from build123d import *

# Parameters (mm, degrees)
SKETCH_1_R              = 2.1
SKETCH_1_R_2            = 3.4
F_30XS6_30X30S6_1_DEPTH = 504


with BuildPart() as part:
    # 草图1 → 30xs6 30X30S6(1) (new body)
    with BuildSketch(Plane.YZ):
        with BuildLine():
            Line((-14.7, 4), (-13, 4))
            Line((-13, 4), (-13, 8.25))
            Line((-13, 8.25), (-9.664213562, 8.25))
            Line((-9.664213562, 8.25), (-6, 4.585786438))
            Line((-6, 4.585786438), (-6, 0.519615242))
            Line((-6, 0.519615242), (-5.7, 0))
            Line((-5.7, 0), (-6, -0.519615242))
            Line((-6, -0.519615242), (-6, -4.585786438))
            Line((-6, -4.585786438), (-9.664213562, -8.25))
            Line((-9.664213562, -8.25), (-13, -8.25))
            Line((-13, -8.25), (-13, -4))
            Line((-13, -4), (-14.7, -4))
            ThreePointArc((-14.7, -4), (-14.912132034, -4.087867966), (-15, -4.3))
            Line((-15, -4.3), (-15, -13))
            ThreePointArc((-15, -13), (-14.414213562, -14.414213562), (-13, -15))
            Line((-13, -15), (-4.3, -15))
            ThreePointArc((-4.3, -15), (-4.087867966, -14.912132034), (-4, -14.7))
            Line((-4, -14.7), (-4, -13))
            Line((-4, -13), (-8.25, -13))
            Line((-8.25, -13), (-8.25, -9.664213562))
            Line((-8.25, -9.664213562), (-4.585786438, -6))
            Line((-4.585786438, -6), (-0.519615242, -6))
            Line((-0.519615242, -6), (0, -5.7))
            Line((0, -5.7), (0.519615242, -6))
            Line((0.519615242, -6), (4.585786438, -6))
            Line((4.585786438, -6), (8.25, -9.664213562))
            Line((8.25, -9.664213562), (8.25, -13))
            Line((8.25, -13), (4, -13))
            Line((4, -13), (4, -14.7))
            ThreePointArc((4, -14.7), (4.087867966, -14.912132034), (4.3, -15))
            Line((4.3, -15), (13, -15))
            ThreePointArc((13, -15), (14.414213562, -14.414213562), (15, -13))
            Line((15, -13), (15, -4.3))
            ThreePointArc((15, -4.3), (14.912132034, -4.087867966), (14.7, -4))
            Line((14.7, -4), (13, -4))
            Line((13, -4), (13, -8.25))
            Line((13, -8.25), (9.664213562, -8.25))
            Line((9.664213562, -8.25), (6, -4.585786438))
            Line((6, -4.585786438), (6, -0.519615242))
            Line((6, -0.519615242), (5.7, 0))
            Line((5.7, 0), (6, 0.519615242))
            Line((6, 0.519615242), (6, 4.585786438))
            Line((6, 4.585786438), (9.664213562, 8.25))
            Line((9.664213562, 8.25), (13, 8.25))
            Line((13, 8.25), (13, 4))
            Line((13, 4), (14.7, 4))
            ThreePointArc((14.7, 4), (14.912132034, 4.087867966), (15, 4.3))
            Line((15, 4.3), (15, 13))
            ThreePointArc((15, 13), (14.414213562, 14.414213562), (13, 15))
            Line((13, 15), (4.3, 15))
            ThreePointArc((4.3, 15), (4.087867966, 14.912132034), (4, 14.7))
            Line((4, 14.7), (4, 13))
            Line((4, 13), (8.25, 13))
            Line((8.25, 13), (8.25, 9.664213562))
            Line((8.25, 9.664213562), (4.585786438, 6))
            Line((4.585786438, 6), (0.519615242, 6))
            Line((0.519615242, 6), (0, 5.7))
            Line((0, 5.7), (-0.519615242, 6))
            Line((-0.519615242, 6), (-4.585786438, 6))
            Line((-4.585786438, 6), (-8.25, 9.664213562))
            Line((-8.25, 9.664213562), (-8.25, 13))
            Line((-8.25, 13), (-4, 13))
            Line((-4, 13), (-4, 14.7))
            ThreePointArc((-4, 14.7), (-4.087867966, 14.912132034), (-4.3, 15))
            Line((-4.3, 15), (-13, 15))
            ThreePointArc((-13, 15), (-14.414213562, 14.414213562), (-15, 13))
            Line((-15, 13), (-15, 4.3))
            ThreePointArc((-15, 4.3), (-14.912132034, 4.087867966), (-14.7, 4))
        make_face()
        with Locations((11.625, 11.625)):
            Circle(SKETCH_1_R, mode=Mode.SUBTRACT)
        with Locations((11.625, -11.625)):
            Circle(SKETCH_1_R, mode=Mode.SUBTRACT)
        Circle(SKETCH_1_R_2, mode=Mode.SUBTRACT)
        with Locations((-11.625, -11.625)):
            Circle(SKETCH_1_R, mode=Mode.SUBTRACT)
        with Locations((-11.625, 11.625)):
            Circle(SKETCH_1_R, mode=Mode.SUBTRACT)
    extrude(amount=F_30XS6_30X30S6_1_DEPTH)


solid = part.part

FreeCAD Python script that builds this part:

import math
import FreeCAD as App
import Part
import Sketcher
from FreeCAD import Vector
Q = App.Units.Quantity

doc = App.newDocument("Part")
body = doc.addObject("PartDesign::Body", "Body")

# Sketch on YZ plane
sketch1 = body.newObject("Sketcher::SketchObject", "Sketch")
sketch1.AttachmentSupport = (doc.getObject("YZ_Plane"), [""])
sketch1.MapMode = "FlatFace"
sketch1.addGeometry(Part.LineSegment(Vector(-14.7, 4, 0), Vector(-13, 4, 0)), False)
sketch1.addGeometry(Part.LineSegment(Vector(-13, 4, 0), Vector(-13, 8.25, 0)), False)
sketch1.addGeometry(Part.LineSegment(Vector(-13, 8.25, 0), Vector(-9.664214, 8.25, 0)), False)
sketch1.addGeometry(Part.LineSegment(Vector(-9.664214, 8.25, 0), Vector(-6, 4.585786, 0)), False)
sketch1.addGeometry(Part.LineSegment(Vector(-6, 4.585786, 0), Vector(-6, 0.519615, 0)), False)
sketch1.addGeometry(Part.LineSegment(Vector(-6, 0.519615, 0), Vector(-5.7, 0, 0)), False)
sketch1.addGeometry(Part.LineSegment(Vector(-5.7, 0, 0), Vector(-6, -0.519615, 0)), False)
sketch1.addGeometry(Part.LineSegment(Vector(-6, -0.519615, 0), Vector(-6, -4.585786, 0)), False)
sketch1.addGeometry(Part.LineSegment(Vector(-6, -4.585786, 0), Vector(-9.664214, -8.25, 0)), False)
sketch1.addGeometry(Part.LineSegment(Vector(-9.664214, -8.25, 0), Vector(-13, -8.25, 0)), False)
sketch1.addGeometry(Part.LineSegment(Vector(-13, -8.25, 0), Vector(-13, -4, 0)), False)
sketch1.addGeometry(Part.LineSegment(Vector(-13, -4, 0), Vector(-14.7, -4, 0)), False)
sketch1.addGeometry(Part.ArcOfCircle(Part.Circle(Vector(-14.7, -4.3, 0), Vector(0, 0, 1), 0.3), math.radians(90), math.radians(180)), False)
sketch1.addGeometry(Part.LineSegment(Vector(-15, -4.3, 0), Vector(-15, -13, 0)), False)
sketch1.addGeometry(Part.ArcOfCircle(Part.Circle(Vector(-13, -13, 0), Vector(0, 0, 1), 2), math.radians(-180), math.radians(-90)), False)
sketch1.addGeometry(Part.LineSegment(Vector(-13, -15, 0), Vector(-4.3, -15, 0)), False)
sketch1.addGeometry(Part.ArcOfCircle(Part.Circle(Vector(-4.3, -14.7, 0), Vector(0, 0, 1), 0.3), math.radians(-90), math.radians(0)), False)
sketch1.addGeometry(Part.LineSegment(Vector(-4, -14.7, 0), Vector(-4, -13, 0)), False)
sketch1.addGeometry(Part.LineSegment(Vector(-4, -13, 0), Vector(-8.25, -13, 0)), False)
sketch1.addGeometry(Part.LineSegment(Vector(-8.25, -13, 0), Vector(-8.25, -9.664214, 0)), False)
sketch1.addGeometry(Part.LineSegment(Vector(-8.25, -9.664214, 0), Vector(-4.585786, -6, 0)), False)
sketch1.addGeometry(Part.LineSegment(Vector(-4.585786, -6, 0), Vector(-0.519615, -6, 0)), False)
sketch1.addGeometry(Part.LineSegment(Vector(-0.519615, -6, 0), Vector(0, -5.7, 0)), False)
sketch1.addGeometry(Part.LineSegment(Vector(0, -5.7, 0), Vector(0.519615, -6, 0)), False)
sketch1.addGeometry(Part.LineSegment(Vector(0.519615, -6, 0), Vector(4.585786, -6, 0)), False)
sketch1.addGeometry(Part.LineSegment(Vector(4.585786, -6, 0), Vector(8.25, -9.664214, 0)), False)
sketch1.addGeometry(Part.LineSegment(Vector(8.25, -9.664214, 0), Vector(8.25, -13, 0)), False)
sketch1.addGeometry(Part.LineSegment(Vector(8.25, -13, 0), Vector(4, -13, 0)), False)
sketch1.addGeometry(Part.LineSegment(Vector(4, -13, 0), Vector(4, -14.7, 0)), False)
sketch1.addGeometry(Part.ArcOfCircle(Part.Circle(Vector(4.3, -14.7, 0), Vector(0, 0, 1), 0.3), math.radians(-180), math.radians(-90)), False)
sketch1.addGeometry(Part.LineSegment(Vector(4.3, -15, 0), Vector(13, -15, 0)), False)
sketch1.addGeometry(Part.ArcOfCircle(Part.Circle(Vector(13, -13, 0), Vector(0, 0, 1), 2), math.radians(-90), math.radians(0)), False)
sketch1.addGeometry(Part.LineSegment(Vector(15, -13, 0), Vector(15, -4.3, 0)), False)
sketch1.addGeometry(Part.ArcOfCircle(Part.Circle(Vector(14.7, -4.3, 0), Vector(0, 0, 1), 0.3), math.radians(0), math.radians(90)), False)
sketch1.addGeometry(Part.LineSegment(Vector(14.7, -4, 0), Vector(13, -4, 0)), False)
sketch1.addGeometry(Part.LineSegment(Vector(13, -4, 0), Vector(13, -8.25, 0)), False)
sketch1.addGeometry(Part.LineSegment(Vector(13, -8.25, 0), Vector(9.664214, -8.25, 0)), False)
sketch1.addGeometry(Part.LineSegment(Vector(9.664214, -8.25, 0), Vector(6, -4.585786, 0)), False)
sketch1.addGeometry(Part.LineSegment(Vector(6, -4.585786, 0), Vector(6, -0.519615, 0)), False)
sketch1.addGeometry(Part.LineSegment(Vector(6, -0.519615, 0), Vector(5.7, 0, 0)), False)
sketch1.addGeometry(Part.LineSegment(Vector(5.7, 0, 0), Vector(6, 0.519615, 0)), False)
sketch1.addGeometry(Part.LineSegment(Vector(6, 0.519615, 0), Vector(6, 4.585786, 0)), False)
sketch1.addGeometry(Part.LineSegment(Vector(6, 4.585786, 0), Vector(9.664214, 8.25, 0)), False)
sketch1.addGeometry(Part.LineSegment(Vector(9.664214, 8.25, 0), Vector(13, 8.25, 0)), False)
sketch1.addGeometry(Part.LineSegment(Vector(13, 8.25, 0), Vector(13, 4, 0)), False)
sketch1.addGeometry(Part.LineSegment(Vector(13, 4, 0), Vector(14.7, 4, 0)), False)
sketch1.addGeometry(Part.ArcOfCircle(Part.Circle(Vector(14.7, 4.3, 0), Vector(0, 0, 1), 0.3), math.radians(-90), math.radians(0)), False)
sketch1.addGeometry(Part.LineSegment(Vector(15, 4.3, 0), Vector(15, 13, 0)), False)
sketch1.addGeometry(Part.ArcOfCircle(Part.Circle(Vector(13, 13, 0), Vector(0, 0, 1), 2), math.radians(0), math.radians(90)), False)
sketch1.addGeometry(Part.LineSegment(Vector(13, 15, 0), Vector(4.3, 15, 0)), False)
sketch1.addGeometry(Part.ArcOfCircle(Part.Circle(Vector(4.3, 14.7, 0), Vector(0, 0, 1), 0.3), math.radians(90), math.radians(180)), False)
sketch1.addGeometry(Part.LineSegment(Vector(4, 14.7, 0), Vector(4, 13, 0)), False)
sketch1.addGeometry(Part.LineSegment(Vector(4, 13, 0), Vector(8.25, 13, 0)), False)
sketch1.addGeometry(Part.LineSegment(Vector(8.25, 13, 0), Vector(8.25, 9.664214, 0)), False)
sketch1.addGeometry(Part.LineSegment(Vector(8.25, 9.664214, 0), Vector(4.585786, 6, 0)), False)
sketch1.addGeometry(Part.LineSegment(Vector(4.585786, 6, 0), Vector(0.519615, 6, 0)), False)
sketch1.addGeometry(Part.LineSegment(Vector(0.519615, 6, 0), Vector(0, 5.7, 0)), False)
sketch1.addGeometry(Part.LineSegment(Vector(0, 5.7, 0), Vector(-0.519615, 6, 0)), False)
sketch1.addGeometry(Part.LineSegment(Vector(-0.519615, 6, 0), Vector(-4.585786, 6, 0)), False)
sketch1.addGeometry(Part.LineSegment(Vector(-4.585786, 6, 0), Vector(-8.25, 9.664214, 0)), False)
sketch1.addGeometry(Part.LineSegment(Vector(-8.25, 9.664214, 0), Vector(-8.25, 13, 0)), False)
sketch1.addGeometry(Part.LineSegment(Vector(-8.25, 13, 0), Vector(-4, 13, 0)), False)
sketch1.addGeometry(Part.LineSegment(Vector(-4, 13, 0), Vector(-4, 14.7, 0)), False)
sketch1.addGeometry(Part.ArcOfCircle(Part.Circle(Vector(-4.3, 14.7, 0), Vector(0, 0, 1), 0.3), math.radians(0), math.radians(90)), False)
sketch1.addGeometry(Part.LineSegment(Vector(-4.3, 15, 0), Vector(-13, 15, 0)), False)
sketch1.addGeometry(Part.ArcOfCircle(Part.Circle(Vector(-13, 13, 0), Vector(0, 0, 1), 2), math.radians(90), math.radians(180)), False)
sketch1.addGeometry(Part.LineSegment(Vector(-15, 13, 0), Vector(-15, 4.3, 0)), False)
sketch1.addGeometry(Part.ArcOfCircle(Part.Circle(Vector(-14.7, 4.3, 0), Vector(0, 0, 1), 0.3), math.radians(-180), math.radians(-90)), False)
sketch1.addGeometry(Part.Circle(Vector(-11.625, -11.625, 0), Vector(0, 0, 1), 2.1), False)
sketch1.addGeometry(Part.Circle(Vector(11.625, -11.625, 0), Vector(0, 0, 1), 2.1), False)
sketch1.addGeometry(Part.Circle(Vector(-11.625, 11.625, 0), Vector(0, 0, 1), 2.1), False)
sketch1.addGeometry(Part.Circle(Vector(0, 0, 0), Vector(0, 0, 1), 3.4), False)
sketch1.addGeometry(Part.Circle(Vector(11.625, 11.625, 0), Vector(0, 0, 1), 2.1), False)
sketch1.addConstraint(Sketcher.Constraint("Coincident", 0, 2, 1, 1))
sketch1.addConstraint(Sketcher.Constraint("Coincident", 1, 2, 2, 1))
sketch1.addConstraint(Sketcher.Constraint("Coincident", 2, 2, 3, 1))
sketch1.addConstraint(Sketcher.Constraint("Coincident", 3, 2, 4, 1))
sketch1.addConstraint(Sketcher.Constraint("Coincident", 4, 2, 5, 1))
sketch1.addConstraint(Sketcher.Constraint("Coincident", 5, 2, 6, 1))
sketch1.addConstraint(Sketcher.Constraint("Coincident", 6, 2, 7, 1))
sketch1.addConstraint(Sketcher.Constraint("Coincident", 7, 2, 8, 1))
sketch1.addConstraint(Sketcher.Constraint("Coincident", 8, 2, 9, 1))
sketch1.addConstraint(Sketcher.Constraint("Coincident", 9, 2, 10, 1))
sketch1.addConstraint(Sketcher.Constraint("Coincident", 10, 2, 11, 1))
sketch1.addConstraint(Sketcher.Constraint("Tangent", 11, 2, 12, 1))
sketch1.addConstraint(Sketcher.Constraint("Tangent", 12, 2, 13, 1))
sketch1.addConstraint(Sketcher.Constraint("Tangent", 13, 2, 14, 1))
sketch1.addConstraint(Sketcher.Constraint("Tangent", 14, 2, 15, 1))
sketch1.addConstraint(Sketcher.Constraint("Tangent", 15, 2, 16, 1))
sketch1.addConstraint(Sketcher.Constraint("Tangent", 16, 2, 17, 1))
sketch1.addConstraint(Sketcher.Constraint("Coincident", 17, 2, 18, 1))
sketch1.addConstraint(Sketcher.Constraint("Coincident", 18, 2, 19, 1))
sketch1.addConstraint(Sketcher.Constraint("Coincident", 19, 2, 20, 1))
sketch1.addConstraint(Sketcher.Constraint("Coincident", 20, 2, 21, 1))
sketch1.addConstraint(Sketcher.Constraint("Coincident", 21, 2, 22, 1))
sketch1.addConstraint(Sketcher.Constraint("Coincident", 22, 2, 23, 1))
sketch1.addConstraint(Sketcher.Constraint("Coincident", 23, 2, 24, 1))
sketch1.addConstraint(Sketcher.Constraint("Coincident", 24, 2, 25, 1))
sketch1.addConstraint(Sketcher.Constraint("Coincident", 25, 2, 26, 1))
sketch1.addConstraint(Sketcher.Constraint("Coincident", 26, 2, 27, 1))
sketch1.addConstraint(Sketcher.Constraint("Coincident", 27, 2, 28, 1))
sketch1.addConstraint(Sketcher.Constraint("Tangent", 28, 2, 29, 1))
sketch1.addConstraint(Sketcher.Constraint("Tangent", 29, 2, 30, 1))
sketch1.addConstraint(Sketcher.Constraint("Tangent", 30, 2, 31, 1))
sketch1.addConstraint(Sketcher.Constraint("Tangent", 31, 2, 32, 1))
sketch1.addConstraint(Sketcher.Constraint("Tangent", 32, 2, 33, 1))
sketch1.addConstraint(Sketcher.Constraint("Tangent", 33, 2, 34, 1))
sketch1.addConstraint(Sketcher.Constraint("Coincident", 34, 2, 35, 1))
sketch1.addConstraint(Sketcher.Constraint("Coincident", 35, 2, 36, 1))
sketch1.addConstraint(Sketcher.Constraint("Coincident", 36, 2, 37, 1))
sketch1.addConstraint(Sketcher.Constraint("Coincident", 37, 2, 38, 1))
sketch1.addConstraint(Sketcher.Constraint("Coincident", 38, 2, 39, 1))
sketch1.addConstraint(Sketcher.Constraint("Coincident", 39, 2, 40, 1))
sketch1.addConstraint(Sketcher.Constraint("Coincident", 40, 2, 41, 1))
sketch1.addConstraint(Sketcher.Constraint("Coincident", 41, 2, 42, 1))
sketch1.addConstraint(Sketcher.Constraint("Coincident", 42, 2, 43, 1))
sketch1.addConstraint(Sketcher.Constraint("Coincident", 43, 2, 44, 1))
sketch1.addConstraint(Sketcher.Constraint("Coincident", 44, 2, 45, 1))
sketch1.addConstraint(Sketcher.Constraint("Tangent", 45, 2, 46, 1))
sketch1.addConstraint(Sketcher.Constraint("Tangent", 46, 2, 47, 1))
sketch1.addConstraint(Sketcher.Constraint("Tangent", 47, 2, 48, 1))
sketch1.addConstraint(Sketcher.Constraint("Tangent", 48, 2, 49, 1))
sketch1.addConstraint(Sketcher.Constraint("Tangent", 49, 2, 50, 1))
sketch1.addConstraint(Sketcher.Constraint("Tangent", 50, 2, 51, 1))
sketch1.addConstraint(Sketcher.Constraint("Coincident", 51, 2, 52, 1))
sketch1.addConstraint(Sketcher.Constraint("Coincident", 52, 2, 53, 1))
sketch1.addConstraint(Sketcher.Constraint("Coincident", 53, 2, 54, 1))
sketch1.addConstraint(Sketcher.Constraint("Coincident", 54, 2, 55, 1))
sketch1.addConstraint(Sketcher.Constraint("Coincident", 55, 2, 56, 1))
sketch1.addConstraint(Sketcher.Constraint("Coincident", 56, 2, 57, 1))
sketch1.addConstraint(Sketcher.Constraint("Coincident", 57, 2, 58, 1))
sketch1.addConstraint(Sketcher.Constraint("Coincident", 58, 2, 59, 1))
sketch1.addConstraint(Sketcher.Constraint("Coincident", 59, 2, 60, 1))
sketch1.addConstraint(Sketcher.Constraint("Coincident", 60, 2, 61, 1))
sketch1.addConstraint(Sketcher.Constraint("Coincident", 61, 2, 62, 1))
sketch1.addConstraint(Sketcher.Constraint("Tangent", 62, 2, 63, 1))
sketch1.addConstraint(Sketcher.Constraint("Tangent", 63, 2, 64, 1))
sketch1.addConstraint(Sketcher.Constraint("Tangent", 64, 2, 65, 1))
sketch1.addConstraint(Sketcher.Constraint("Tangent", 65, 2, 66, 1))
sketch1.addConstraint(Sketcher.Constraint("Tangent", 66, 2, 67, 1))
sketch1.addConstraint(Sketcher.Constraint("Tangent", 67, 2, 0, 1))
sketch1.addConstraint(Sketcher.Constraint("Horizontal", 0))
sketch1.addConstraint(Sketcher.Constraint("Vertical", 1))
sketch1.addConstraint(Sketcher.Constraint("Horizontal", 2))
sketch1.addConstraint(Sketcher.Constraint("Vertical", 4))
sketch1.addConstraint(Sketcher.Constraint("Vertical", 7))
sketch1.addConstraint(Sketcher.Constraint("Horizontal", 9))
sketch1.addConstraint(Sketcher.Constraint("Vertical", 10))
sketch1.addConstraint(Sketcher.Constraint("Horizontal", 11))
sketch1.addConstraint(Sketcher.Constraint("Vertical", 13))
sketch1.addConstraint(Sketcher.Constraint("Horizontal", 15))
sketch1.addConstraint(Sketcher.Constraint("Vertical", 17))
sketch1.addConstraint(Sketcher.Constraint("Horizontal", 18))
sketch1.addConstraint(Sketcher.Constraint("Vertical", 19))
sketch1.addConstraint(Sketcher.Constraint("Horizontal", 21))
sketch1.addConstraint(Sketcher.Constraint("Horizontal", 24))
sketch1.addConstraint(Sketcher.Constraint("Vertical", 26))
sketch1.addConstraint(Sketcher.Constraint("Horizontal", 27))
sketch1.addConstraint(Sketcher.Constraint("Vertical", 28))
sketch1.addConstraint(Sketcher.Constraint("Horizontal", 30))
sketch1.addConstraint(Sketcher.Constraint("Vertical", 32))
sketch1.addConstraint(Sketcher.Constraint("Horizontal", 34))
sketch1.addConstraint(Sketcher.Constraint("Vertical", 35))
sketch1.addConstraint(Sketcher.Constraint("Horizontal", 36))
sketch1.addConstraint(Sketcher.Constraint("Vertical", 38))
sketch1.addConstraint(Sketcher.Constraint("Vertical", 41))
sketch1.addConstraint(Sketcher.Constraint("Horizontal", 43))
sketch1.addConstraint(Sketcher.Constraint("Vertical", 44))
sketch1.addConstraint(Sketcher.Constraint("Horizontal", 45))
sketch1.addConstraint(Sketcher.Constraint("Vertical", 47))
sketch1.addConstraint(Sketcher.Constraint("Horizontal", 49))
sketch1.addConstraint(Sketcher.Constraint("Vertical", 51))
sketch1.addConstraint(Sketcher.Constraint("Horizontal", 52))
sketch1.addConstraint(Sketcher.Constraint("Vertical", 53))
sketch1.addConstraint(Sketcher.Constraint("Horizontal", 55))
sketch1.addConstraint(Sketcher.Constraint("Horizontal", 58))
sketch1.addConstraint(Sketcher.Constraint("Vertical", 60))
sketch1.addConstraint(Sketcher.Constraint("Horizontal", 61))
sketch1.addConstraint(Sketcher.Constraint("Vertical", 62))
sketch1.addConstraint(Sketcher.Constraint("Horizontal", 64))
sketch1.addConstraint(Sketcher.Constraint("Vertical", 66))
sketch1.addConstraint(Sketcher.Constraint("Coincident", 71, 3, -1, 1))
sketch1.addConstraint(Sketcher.Constraint("Equal", 12, 16))
sketch1.addConstraint(Sketcher.Constraint("Equal", 16, 29))
sketch1.addConstraint(Sketcher.Constraint("Equal", 14, 31))
sketch1.addConstraint(Sketcher.Constraint("Equal", 29, 33))
sketch1.addConstraint(Sketcher.Constraint("Equal", 33, 46))
sketch1.addConstraint(Sketcher.Constraint("Equal", 31, 48))
sketch1.addConstraint(Sketcher.Constraint("Equal", 46, 50))
sketch1.addConstraint(Sketcher.Constraint("Equal", 50, 63))
sketch1.addConstraint(Sketcher.Constraint("Equal", 48, 65))
sketch1.addConstraint(Sketcher.Constraint("Equal", 63, 67))
sketch1.addConstraint(Sketcher.Constraint("Equal", 68, 69))
sketch1.addConstraint(Sketcher.Constraint("Equal", 69, 70))
sketch1.addConstraint(Sketcher.Constraint("Equal", 70, 72))
sketch1.addConstraint(Sketcher.Constraint("Symmetric", 12, 3, 46, 3, -1, 1))
sketch1.addConstraint(Sketcher.Constraint("Symmetric", 16, 3, 50, 3, -1, 1))
sketch1.addConstraint(Sketcher.Constraint("Symmetric", 29, 3, 63, 3, -1, 1))
sketch1.addConstraint(Sketcher.Constraint("Symmetric", 33, 3, 67, 3, -1, 1))
sketch1.addConstraint(Sketcher.Constraint("Symmetric", 69, 3, 70, 3, -1, 1))
sketch1.addConstraint(Sketcher.Constraint("Symmetric", 68, 3, 72, 3, -1, 1))
sketch1.addConstraint(Sketcher.Constraint("Symmetric", 1, 2, 35, 2, -1, 1))
sketch1.addConstraint(Sketcher.Constraint("Symmetric", 3, 2, 37, 2, -1, 1))
sketch1.addConstraint(Sketcher.Constraint("Symmetric", 5, 2, 39, 2, -1, 1))
sketch1.addConstraint(Sketcher.Constraint("Symmetric", 6, 2, 40, 2, -1, 1))
sketch1.addConstraint(Sketcher.Constraint("Symmetric", 8, 2, 42, 2, -1, 1))
sketch1.addConstraint(Sketcher.Constraint("Symmetric", 18, 2, 52, 2, -1, 1))
sketch1.addConstraint(Sketcher.Constraint("Symmetric", 20, 2, 54, 2, -1, 1))
sketch1.addConstraint(Sketcher.Constraint("Symmetric", 22, 2, 56, 2, -1, 1))
sketch1.addConstraint(Sketcher.Constraint("Symmetric", 23, 2, 57, 2, -1, 1))
sketch1.addConstraint(Sketcher.Constraint("Symmetric", 25, 2, 59, 2, -1, 1))
sketch1.addConstraint(Sketcher.Constraint("Symmetric", 16, 3, 29, 3, -2))
sketch1.addConstraint(Sketcher.Constraint("Symmetric", 12, 3, 33, 3, -2))
sketch1.addConstraint(Sketcher.Constraint("Symmetric", 68, 3, 69, 3, -2))
sketch1.addConstraint(Sketcher.Constraint("Symmetric", 21, 2, 23, 2, -2))
sketch1.addConstraint(Sketcher.Constraint("Symmetric", 19, 2, 25, 2, -2))
sketch1.addConstraint(Sketcher.Constraint("Symmetric", 9, 2, 35, 2, -2))
sketch1.addConstraint(Sketcher.Constraint("Symmetric", 7, 2, 37, 2, -2))
sketch1.addConstraint(Sketcher.Constraint("PointOnObject", 5, 2, -1))
sketch1.addConstraint(Sketcher.Constraint("PointOnObject", 22, 2, -2))
sketch1.addConstraint(Sketcher.Constraint("Perpendicular", 3, 8))
sketch1.addConstraint(Sketcher.Constraint("Parallel", 8, 20))
sketch1.addConstraint(Sketcher.Constraint("Perpendicular", 5, 22))
sketch1.addConstraint(Sketcher.Constraint("Perpendicular", 6, 23))
sketch1.addConstraint(Sketcher.Constraint("Perpendicular", 20, 25))
sketch1.addConstraint(Sketcher.Constraint("Parallel", 25, 37))
sketch1.addConstraint(Sketcher.Constraint("Perpendicular", 22, 39))
sketch1.addConstraint(Sketcher.Constraint("Perpendicular", 37, 42))
sketch1.addConstraint(Sketcher.Constraint("Parallel", 42, 54))
sketch1.addConstraint(Sketcher.Constraint("Perpendicular", 39, 56))
sketch1.addConstraint(Sketcher.Constraint("Perpendicular", 54, 59))
sketch1.addConstraint(Sketcher.Constraint("Horizontal", 13, 2, 17, 2))
sketch1.addConstraint(Sketcher.Constraint("Horizontal", 18, 2, 26, 2))
sketch1.addConstraint(Sketcher.Constraint("Horizontal", 52, 2, 60, 2))
sketch1.addConstraint(Sketcher.Constraint("Vertical", 65, 3, 0, 2))
sketch1.addConstraint(Sketcher.Constraint("Vertical", 2, 2, 8, 2))
sketch1.addConstraint(Sketcher.Constraint("Vertical", 35, 2, 43, 2))
sketch1.addConstraint(Sketcher.Constraint("Equal", 61, 1))
sketch1.addConstraint(Sketcher.Constraint("Equal", 58, 4))
sketch1.addConstraint(Sketcher.Constraint("Equal", 64, 13))
sketch1.addConstraint(Sketcher.Constraint("Equal", 43, 19))
sketch1.addConstraint(Sketcher.Constraint("Equal", 8, 20))
sketch1.addConstraint(Sketcher.Constraint("Equal", 6, 22))
sketch1.addConstraint(Sketcher.Constraint("Radius", 14, 2.0))
sketch1.addConstraint(Sketcher.Constraint("Diameter", 68, 4.2))
sketch1.addConstraint(Sketcher.Constraint("Diameter", 71, 6.8))
sketch1.addConstraint(Sketcher.Constraint("Radius", 12, 0.3))
sketch1.addConstraint(Sketcher.Constraint("Angle", 5, Q("-60 deg")))
sketch1.addConstraint(Sketcher.Constraint("DistanceX", 15, 1, 15, 2, 8.7))
sketch1.addConstraint(Sketcher.Constraint("DistanceX", 14, 3, -1, 1, 13.0))
sketch1.addConstraint(Sketcher.Constraint("DistanceX", 3, 2, -1, 1, 6.0))
sketch1.addConstraint(Sketcher.Constraint("Distance", 5, 0.6))
sketch1.addConstraint(Sketcher.Constraint("DistanceX", 18, 2, 18, 1, 4.25))
sketch1.addConstraint(Sketcher.Constraint("DistanceX", 68, 3, -1, 1, 11.625))
sketch1.addConstraint(Sketcher.Constraint("DistanceY", 68, 3, -1, 1, 11.625))
sketch1.addConstraint(Sketcher.Constraint("DistanceX", 21, 1, 21, 2, 4.066171))
pad1 = body.newObject("PartDesign::Pad", "Pad")
pad1.Profile = sketch1
pad1.Length = 504

doc.recompute()
